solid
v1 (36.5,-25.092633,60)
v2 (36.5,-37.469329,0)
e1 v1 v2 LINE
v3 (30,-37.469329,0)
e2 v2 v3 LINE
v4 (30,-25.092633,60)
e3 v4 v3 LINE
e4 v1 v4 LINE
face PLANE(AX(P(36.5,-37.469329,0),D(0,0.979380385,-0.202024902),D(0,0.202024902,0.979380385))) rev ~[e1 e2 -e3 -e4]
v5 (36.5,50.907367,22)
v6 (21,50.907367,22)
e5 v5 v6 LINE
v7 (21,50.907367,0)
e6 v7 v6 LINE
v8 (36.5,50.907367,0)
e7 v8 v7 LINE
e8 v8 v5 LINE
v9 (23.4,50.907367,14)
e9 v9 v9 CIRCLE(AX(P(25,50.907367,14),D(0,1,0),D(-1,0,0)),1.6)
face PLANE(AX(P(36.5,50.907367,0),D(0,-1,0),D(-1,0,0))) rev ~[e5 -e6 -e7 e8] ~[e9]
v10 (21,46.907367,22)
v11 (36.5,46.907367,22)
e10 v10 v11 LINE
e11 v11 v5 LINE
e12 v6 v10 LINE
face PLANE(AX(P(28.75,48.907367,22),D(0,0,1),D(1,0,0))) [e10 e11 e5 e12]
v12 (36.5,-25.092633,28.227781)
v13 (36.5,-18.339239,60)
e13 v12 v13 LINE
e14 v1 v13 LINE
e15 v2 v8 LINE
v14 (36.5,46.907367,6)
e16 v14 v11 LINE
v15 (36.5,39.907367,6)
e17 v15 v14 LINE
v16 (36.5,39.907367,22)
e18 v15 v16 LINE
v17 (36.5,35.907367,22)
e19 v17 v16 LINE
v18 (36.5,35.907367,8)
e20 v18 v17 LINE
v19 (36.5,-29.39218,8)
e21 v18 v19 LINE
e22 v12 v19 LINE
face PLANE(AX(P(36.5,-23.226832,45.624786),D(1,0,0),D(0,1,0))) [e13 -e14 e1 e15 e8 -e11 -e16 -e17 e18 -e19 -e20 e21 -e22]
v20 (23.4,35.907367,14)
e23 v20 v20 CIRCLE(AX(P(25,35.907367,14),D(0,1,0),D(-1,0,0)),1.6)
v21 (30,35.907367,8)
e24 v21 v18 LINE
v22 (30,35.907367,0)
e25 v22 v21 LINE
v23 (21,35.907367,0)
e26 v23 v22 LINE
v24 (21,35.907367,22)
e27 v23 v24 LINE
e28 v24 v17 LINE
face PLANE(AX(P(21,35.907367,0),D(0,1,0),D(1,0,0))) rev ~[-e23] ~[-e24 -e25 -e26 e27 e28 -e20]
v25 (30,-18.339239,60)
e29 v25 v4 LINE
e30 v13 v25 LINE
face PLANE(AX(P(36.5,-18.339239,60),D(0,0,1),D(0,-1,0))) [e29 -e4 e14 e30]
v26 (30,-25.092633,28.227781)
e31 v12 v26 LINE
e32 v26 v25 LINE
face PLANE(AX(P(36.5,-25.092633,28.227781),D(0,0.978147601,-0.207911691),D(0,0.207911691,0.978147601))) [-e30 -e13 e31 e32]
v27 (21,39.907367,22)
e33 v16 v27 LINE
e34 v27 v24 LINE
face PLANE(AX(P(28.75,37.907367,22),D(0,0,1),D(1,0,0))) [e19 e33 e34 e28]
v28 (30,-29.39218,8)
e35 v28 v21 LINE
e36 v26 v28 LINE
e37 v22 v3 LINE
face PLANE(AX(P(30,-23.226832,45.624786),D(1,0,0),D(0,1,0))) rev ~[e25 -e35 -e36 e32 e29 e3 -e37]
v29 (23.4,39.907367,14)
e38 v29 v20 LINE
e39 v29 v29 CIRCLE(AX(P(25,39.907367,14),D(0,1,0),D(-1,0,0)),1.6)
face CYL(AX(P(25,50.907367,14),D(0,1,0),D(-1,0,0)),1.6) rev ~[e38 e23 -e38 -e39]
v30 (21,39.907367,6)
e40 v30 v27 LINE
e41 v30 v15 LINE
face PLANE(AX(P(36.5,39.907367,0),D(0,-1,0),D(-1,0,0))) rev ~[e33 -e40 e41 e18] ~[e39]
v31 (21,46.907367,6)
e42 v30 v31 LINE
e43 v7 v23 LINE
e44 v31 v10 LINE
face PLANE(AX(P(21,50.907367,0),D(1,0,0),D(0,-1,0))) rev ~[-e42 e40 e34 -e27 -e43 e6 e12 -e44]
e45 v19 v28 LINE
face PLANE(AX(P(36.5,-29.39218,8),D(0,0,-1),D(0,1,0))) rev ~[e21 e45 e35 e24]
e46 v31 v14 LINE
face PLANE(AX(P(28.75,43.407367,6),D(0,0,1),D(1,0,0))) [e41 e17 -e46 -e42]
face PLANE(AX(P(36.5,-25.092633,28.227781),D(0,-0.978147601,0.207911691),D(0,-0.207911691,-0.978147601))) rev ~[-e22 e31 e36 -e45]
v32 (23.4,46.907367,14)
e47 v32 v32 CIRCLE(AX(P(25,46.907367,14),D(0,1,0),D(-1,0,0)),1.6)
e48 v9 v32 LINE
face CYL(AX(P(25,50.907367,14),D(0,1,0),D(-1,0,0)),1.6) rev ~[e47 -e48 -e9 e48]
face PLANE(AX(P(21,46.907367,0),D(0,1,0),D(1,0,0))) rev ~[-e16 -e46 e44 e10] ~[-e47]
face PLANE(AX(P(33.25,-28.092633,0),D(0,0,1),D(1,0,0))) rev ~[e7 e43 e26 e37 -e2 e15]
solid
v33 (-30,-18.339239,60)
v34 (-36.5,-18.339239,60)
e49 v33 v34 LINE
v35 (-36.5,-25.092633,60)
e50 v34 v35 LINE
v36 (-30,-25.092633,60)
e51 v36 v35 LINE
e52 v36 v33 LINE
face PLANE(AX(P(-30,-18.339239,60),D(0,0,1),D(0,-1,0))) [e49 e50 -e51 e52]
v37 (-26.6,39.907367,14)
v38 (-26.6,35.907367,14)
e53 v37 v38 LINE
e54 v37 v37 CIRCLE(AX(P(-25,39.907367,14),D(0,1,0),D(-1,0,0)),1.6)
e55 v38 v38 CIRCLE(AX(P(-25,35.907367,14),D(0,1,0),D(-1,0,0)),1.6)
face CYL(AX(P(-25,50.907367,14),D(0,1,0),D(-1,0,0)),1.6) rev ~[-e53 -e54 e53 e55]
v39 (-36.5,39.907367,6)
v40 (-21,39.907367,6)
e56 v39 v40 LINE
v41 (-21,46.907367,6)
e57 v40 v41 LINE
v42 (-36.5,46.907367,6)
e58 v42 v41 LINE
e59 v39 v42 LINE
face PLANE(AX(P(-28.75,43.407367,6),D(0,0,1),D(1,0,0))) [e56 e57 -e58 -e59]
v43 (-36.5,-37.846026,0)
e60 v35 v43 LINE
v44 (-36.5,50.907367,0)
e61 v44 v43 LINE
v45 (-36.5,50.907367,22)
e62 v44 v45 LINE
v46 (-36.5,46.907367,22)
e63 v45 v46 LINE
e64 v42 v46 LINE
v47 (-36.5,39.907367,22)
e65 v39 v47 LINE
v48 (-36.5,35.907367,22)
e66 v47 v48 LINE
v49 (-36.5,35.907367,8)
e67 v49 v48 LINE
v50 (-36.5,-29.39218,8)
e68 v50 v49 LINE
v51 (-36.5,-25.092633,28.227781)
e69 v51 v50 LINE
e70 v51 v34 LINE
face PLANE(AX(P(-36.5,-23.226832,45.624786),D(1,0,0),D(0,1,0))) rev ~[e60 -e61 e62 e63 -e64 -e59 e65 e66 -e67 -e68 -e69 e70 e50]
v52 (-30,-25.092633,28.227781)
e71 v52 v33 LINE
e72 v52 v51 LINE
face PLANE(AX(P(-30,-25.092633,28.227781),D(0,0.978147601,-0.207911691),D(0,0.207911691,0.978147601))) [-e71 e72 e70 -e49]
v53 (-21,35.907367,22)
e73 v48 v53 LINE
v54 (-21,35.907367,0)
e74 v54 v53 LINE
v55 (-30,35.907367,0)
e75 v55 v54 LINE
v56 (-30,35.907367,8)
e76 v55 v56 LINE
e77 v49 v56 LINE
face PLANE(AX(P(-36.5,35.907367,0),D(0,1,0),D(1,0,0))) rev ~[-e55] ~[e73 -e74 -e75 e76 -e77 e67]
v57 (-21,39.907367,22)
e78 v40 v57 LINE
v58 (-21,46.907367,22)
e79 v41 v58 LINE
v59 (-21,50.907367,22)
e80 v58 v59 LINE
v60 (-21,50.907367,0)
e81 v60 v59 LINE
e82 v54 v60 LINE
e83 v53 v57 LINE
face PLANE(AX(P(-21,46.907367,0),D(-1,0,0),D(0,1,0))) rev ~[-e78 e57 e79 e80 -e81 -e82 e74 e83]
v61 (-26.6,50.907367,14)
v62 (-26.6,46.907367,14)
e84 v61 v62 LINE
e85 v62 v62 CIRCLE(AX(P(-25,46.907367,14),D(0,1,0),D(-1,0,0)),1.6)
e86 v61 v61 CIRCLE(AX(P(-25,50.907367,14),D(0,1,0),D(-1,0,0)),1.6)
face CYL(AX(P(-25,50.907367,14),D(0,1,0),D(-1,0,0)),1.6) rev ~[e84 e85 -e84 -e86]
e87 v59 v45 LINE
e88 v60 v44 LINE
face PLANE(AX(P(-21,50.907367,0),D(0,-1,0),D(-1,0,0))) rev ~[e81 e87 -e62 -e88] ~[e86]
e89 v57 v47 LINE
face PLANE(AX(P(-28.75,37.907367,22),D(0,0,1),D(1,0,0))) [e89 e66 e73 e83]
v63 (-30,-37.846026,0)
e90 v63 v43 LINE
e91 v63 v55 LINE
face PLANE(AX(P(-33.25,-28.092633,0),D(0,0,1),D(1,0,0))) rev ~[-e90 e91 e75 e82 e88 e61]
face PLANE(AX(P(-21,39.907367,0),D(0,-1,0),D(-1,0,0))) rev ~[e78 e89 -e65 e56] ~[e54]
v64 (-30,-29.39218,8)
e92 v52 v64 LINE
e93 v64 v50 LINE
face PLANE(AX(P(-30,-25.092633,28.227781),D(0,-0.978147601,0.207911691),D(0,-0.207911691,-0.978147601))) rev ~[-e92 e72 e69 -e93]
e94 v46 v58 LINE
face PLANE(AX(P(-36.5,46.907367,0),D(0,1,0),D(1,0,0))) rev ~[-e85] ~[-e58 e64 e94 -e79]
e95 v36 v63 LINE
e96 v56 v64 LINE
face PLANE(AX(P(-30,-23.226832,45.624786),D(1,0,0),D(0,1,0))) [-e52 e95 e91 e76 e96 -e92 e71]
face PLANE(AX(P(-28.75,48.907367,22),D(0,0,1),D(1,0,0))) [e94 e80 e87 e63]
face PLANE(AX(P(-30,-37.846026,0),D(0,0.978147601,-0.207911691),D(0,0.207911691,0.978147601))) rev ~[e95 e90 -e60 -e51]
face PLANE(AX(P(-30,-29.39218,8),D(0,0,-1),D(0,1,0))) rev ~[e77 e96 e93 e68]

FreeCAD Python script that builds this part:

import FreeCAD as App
import Part
import Sketcher
Q = App.Units.Quantity


def add_polygon(sketch, points):
    """Adds a closed chain of lines whose ends are joined by coincident constraints."""
    first, n = sketch.GeometryCount, len(points)
    for a, b in zip(points, points[1:] + points[:1]):
        sketch.addGeometry(Part.LineSegment(App.Vector(*a, 0), App.Vector(*b, 0)), False)
    for i in range(n):
        sketch.addConstraint(Sketcher.Constraint("Coincident", first + i, 2, first + (i + 1) % n, 1))

doc = App.newDocument("Part")
body = doc.addObject("PartDesign::Body", "Body")

sketch1 = body.newObject("Sketcher::SketchObject", "Sketch")
sketch1.AttachmentSupport = (doc.getObject("XY_Plane"), [""])
sketch1.MapMode = "FlatFace"
add_polygon(sketch1, [(-36.5, 46.907367), (-36.5, 39.907367), (-21, 39.907367), (-21, 46.907367)])
sketch1.addConstraint(Sketcher.Constraint("Vertical", 0))
sketch1.addConstraint(Sketcher.Constraint("Horizontal", 1))
sketch1.addConstraint(Sketcher.Constraint("Vertical", 2))
sketch1.addConstraint(Sketcher.Constraint("Horizontal", 3))
sketch1.addConstraint(Sketcher.Constraint("DistanceY", 0, 2, 0, 1, 7.0))
sketch1.addConstraint(Sketcher.Constraint("DistanceX", 1, 1, 1, 2, 15.5))
sketch1.addConstraint(Sketcher.Constraint("DistanceX", 1, 2, -1, 1, 21.0))
sketch1.addConstraint(Sketcher.Constraint("DistanceY", -1, 1, 0, 2, 39.907367))
pad1 = body.newObject("PartDesign::Pad", "Pad")
pad1.Profile = sketch1
pad1.Length = 6

sketch2 = body.newObject("Sketcher::SketchObject", "Sketch001")
sketch2.AttachmentSupport = (doc.getObject("XY_Plane"), [""])
sketch2.MapMode = "FlatFace"
add_polygon(sketch2, [(-21, 50.907367), (-36.5, 50.907367), (-36.5, 46.907367), (-21, 46.907367)])
add_polygon(sketch2, [(-21, 39.907367), (-36.5, 39.907367), (-36.5, 35.907367), (-21, 35.907367)])
sketch2.addConstraint(Sketcher.Constraint("Horizontal", 0))
sketch2.addConstraint(Sketcher.Constraint("Vertical", 1))
sketch2.addConstraint(Sketcher.Constraint("Horizontal", 2))
sketch2.addConstraint(Sketcher.Constraint("Vertical", 3))
sketch2.addConstraint(Sketcher.Constraint("Horizontal", 4))
sketch2.addConstraint(Sketcher.Constraint("Vertical", 5))
sketch2.addConstraint(Sketcher.Constraint("Horizontal", 6))
sketch2.addConstraint(Sketcher.Constraint("Vertical", 7))
sketch2.addConstraint(Sketcher.Constraint("Vertical", 1, 2, 4, 2))
sketch2.addConstraint(Sketcher.Constraint("Vertical", 3, 2, 6, 2))
sketch2.addConstraint(Sketcher.Constraint("Equal", 3, 5))
sketch2.addConstraint(Sketcher.Constraint("DistanceY", 1, 2, 1, 1, 4.0))
sketch2.addConstraint(Sketcher.Constraint("DistanceX", 0, 2, 0, 1, 15.5))
sketch2.addConstraint(Sketcher.Constraint("DistanceX", 2, 2, -1, 1, 21.0))
sketch2.addConstraint(Sketcher.Constraint("DistanceY", 4, 2, 1, 2, 7.0))
sketch2.addConstraint(Sketcher.Constraint("DistanceY", -1, 1, 0, 2, 50.907367))
pad2 = body.newObject("PartDesign::Pad", "Pad001")
pad2.Profile = sketch2
pad2.Length = 22

sketch3 = body.newObject("Sketcher::SketchObject", "Sketch002")
sketch3.AttachmentSupport = (doc.getObject("XY_Plane"), [""])
sketch3.MapMode = "FlatFace"
add_polygon(sketch3, [(-36.5, 35.907367), (-36.5, -25.092633), (-30, -25.092633), (-30, 35.907367)])
sketch3.addConstraint(Sketcher.Constraint("Vertical", 0))
sketch3.addConstraint(Sketcher.Constraint("Horizontal", 1))
sketch3.addConstraint(Sketcher.Constraint("Vertical", 2))
sketch3.addConstraint(Sketcher.Constraint("Horizontal", 3))
sketch3.addConstraint(Sketcher.Constraint("DistanceY", 0, 2, 0, 1, 61.0))
sketch3.addConstraint(Sketcher.Constraint("DistanceX", 1, 1, 1, 2, 6.5))
sketch3.addConstraint(Sketcher.Constraint("DistanceX", 1, 2, -1, 1, 30.0))
sketch3.addConstraint(Sketcher.Constraint("DistanceY", 0, 2, -1, 1, 25.092633))
pad3 = body.newObject("PartDesign::Pad", "Pad002")
pad3.Profile = sketch3
pad3.Length = 8

sketch4 = body.newObject("Sketcher::SketchObject", "Sketch003")
sketch4.AttachmentSupport = (doc.getObject("XY_Plane"), [""])
sketch4.MapMode = "FlatFace"
add_polygon(sketch4, [(-36.5, -25.092633), (-36.5, -31.092633), (-30, -31.092633), (-30, -25.092633)])
sketch4.addConstraint(Sketcher.Constraint("Vertical", 0))
sketch4.addConstraint(Sketcher.Constraint("Horizontal", 1))
sketch4.addConstraint(Sketcher.Constraint("Vertical", 2))
sketch4.addConstraint(Sketcher.Constraint("Horizontal", 3))
sketch4.addConstraint(Sketcher.Constraint("DistanceY", 0, 2, 0, 1, 6.0))
sketch4.addConstraint(Sketcher.Constraint("DistanceX", 1, 1, 1, 2, 6.5))
sketch4.addConstraint(Sketcher.Constraint("DistanceX", 1, 2, -1, 1, 30.0))
sketch4.addConstraint(Sketcher.Constraint("DistanceY", 0, 2, -1, 1, 31.092633))
pad4 = body.newObject("PartDesign::Pad", "Pad003")
pad4.Profile = sketch4
pad4.Length = 60

sketch5 = body.newObject("Sketcher::SketchObject", "Sketch004")
sketch5.AttachmentSupport = (doc.getObject("XZ_Plane"), [""])
sketch5.MapMode = "FlatFace"
sketch5.AttachmentOffset = App.Placement(App.Vector(0, 0, -50.907367), App.Rotation())
sketch5.addGeometry(Part.Circle(App.Vector(-25, 14, 0), App.Vector(0, 0, 1), 1.6), False)
sketch5.addConstraint(Sketcher.Constraint("Diameter", 0, 3.2))
sketch5.addConstraint(Sketcher.Constraint("DistanceX", 0, 3, -1, 1, 25.0))
sketch5.addConstraint(Sketcher.Constraint("DistanceY", -1, 1, 0, 3, 14.0))
pocket1 = body.newObject("PartDesign::Pocket", "Pocket")
pocket1.Profile = sketch5
pocket1.Type = "ThroughAll"
pocket1.Reversed = True

sketch6 = body.newObject("Sketcher::SketchObject", "Sketch005")
sketch6.AttachmentSupport = (doc.getObject("YZ_Plane"), [""])
sketch6.MapMode = "FlatFace"
sketch6.AttachmentOffset = App.Placement(App.Vector(0, 0, -30), App.Rotation())
add_polygon(sketch6, [(-18.339239, 60), (-25.092633, 60), (-37.846026, 0), (-25.092633, 0), (-25.092633, 8), (-29.39218, 8), (-25.092633, 28.227781)])
sketch6.addConstraint(Sketcher.Constraint("Horizontal", 0))
sketch6.addConstraint(Sketcher.Constraint("Horizontal", 2))
sketch6.addConstraint(Sketcher.Constraint("Vertical", 3))
sketch6.addConstraint(Sketcher.Constraint("Horizontal", 4))
sketch6.addConstraint(Sketcher.Constraint("PointOnObject", 1, 2, -1))
sketch6.addConstraint(Sketcher.Constraint("Parallel", 1, 5))
sketch6.addConstraint(Sketcher.Constraint("Parallel", 5, 6))
sketch6.addConstraint(Sketcher.Constraint("Vertical", 0, 2, 2, 2))
sketch6.addConstraint(Sketcher.Constraint("Vertical", 3, 2, 5, 2))
sketch6.addConstraint(Sketcher.Constraint("DistanceY", 3, 1, 3, 2, 8.0))
sketch6.addConstraint(Sketcher.Constraint("Angle", 1, Q("-102 deg")))
sketch6.addConstraint(Sketcher.Constraint("DistanceY", -1, 1, 0, 2, 60.0))
sketch6.addConstraint(Sketcher.Constraint("Distance", 5, 20.679681))
sketch6.addConstraint(Sketcher.Constraint("DistanceX", 4, 2, -1, 1, 29.39218))
pad5 = body.newObject("PartDesign::Pad", "Pad004")
pad5.Profile = sketch6
pad5.Length = 6.5
pad5.Reversed = True

sketch7 = body.newObject("Sketcher::SketchObject", "Sketch006")
sketch7.AttachmentSupport = (doc.getObject("YZ_Plane"), [""])
sketch7.MapMode = "FlatFace"
sketch7.AttachmentOffset = App.Placement(App.Vector(0, 0, -30), App.Rotation())
add_polygon(sketch7, [(-25.092633, 60), (-31.092633, 60), (-43.846026, 0), (-37.846026, 0)])
add_polygon(sketch7, [(-25.092633, 8), (-25.092633, 28.227781), (-29.39218, 8)])
sketch7.addConstraint(Sketcher.Constraint("Horizontal", 0))
sketch7.addConstraint(Sketcher.Constraint("Horizontal", 2))
sketch7.addConstraint(Sketcher.Constraint("Vertical", 4))
sketch7.addConstraint(Sketcher.Constraint("Horizontal", 6))
sketch7.addConstraint(Sketcher.Constraint("PointOnObject", 1, 2, -1))
sketch7.addConstraint(Sketcher.Constraint("Parallel", 1, 3))
sketch7.addConstraint(Sketcher.Constraint("Parallel", 3, 5))
sketch7.addConstraint(Sketcher.Constraint("Vertical", 3, 2, 4, 2))
sketch7.addConstraint(Sketcher.Constraint("DistanceX", 0, 2, 0, 1, 6.0))
sketch7.addConstraint(Sketcher.Constraint("Angle", 1, Q("-102 deg")))
sketch7.addConstraint(Sketcher.Constraint("DistanceY", -1, 1, 0, 2, 60.0))
sketch7.addConstraint(Sketcher.Constraint("DistanceY", -1, 1, 5, 2, 8.0))
sketch7.addConstraint(Sketcher.Constraint("DistanceY", 4, 1, 4, 2, 20.227781))
sketch7.addConstraint(Sketcher.Constraint("DistanceX", 5, 2, -1, 1, 29.39218))
pocket2 = body.newObject("PartDesign::Pocket", "Pocket001")
pocket2.Profile = sketch7
pocket2.Length = 6.5
body2 = doc.addObject("PartDesign::Body", "Body001")

sketch8 = body2.newObject("Sketcher::SketchObject", "Sketch007")
sketch8.AttachmentSupport = (doc.getObject("XY_Plane001"), [""])
sketch8.MapMode = "FlatFace"
add_polygon(sketch8, [(21, 46.907367), (21, 39.907367), (36.5, 39.907367), (36.5, 46.907367)])
sketch8.addConstraint(Sketcher.Constraint("Vertical", 0))
sketch8.addConstraint(Sketcher.Constraint("Horizontal", 1))
sketch8.addConstraint(Sketcher.Constraint("Vertical", 2))
sketch8.addConstraint(Sketcher.Constraint("Horizontal", 3))
sketch8.addConstraint(Sketcher.Constraint("DistanceY", 0, 2, 0, 1, 7.0))
sketch8.addConstraint(Sketcher.Constraint("DistanceX", 1, 1, 1, 2, 15.5))
sketch8.addConstraint(Sketcher.Constraint("DistanceX", -1, 1, 0, 2, 21.0))
sketch8.addConstraint(Sketcher.Constraint("DistanceY", -1, 1, 0, 2, 39.907367))
pad6 = body2.newObject("PartDesign::Pad", "Pad005")
pad6.Profile = sketch8
pad6.Length = 6

sketch9 = body2.newObject("Sketcher::SketchObject", "Sketch008")
sketch9.AttachmentSupport = (doc.getObject("XY_Plane001"), [""])
sketch9.MapMode = "FlatFace"
add_polygon(sketch9, [(21, 46.907367), (36.5, 46.907367), (36.5, 50.907367), (21, 50.907367)])
add_polygon(sketch9, [(36.5, 35.907367), (36.5, 39.907367), (21, 39.907367), (21, 35.907367)])
sketch9.addConstraint(Sketcher.Constraint("Horizontal", 0))
sketch9.addConstraint(Sketcher.Constraint("Vertical", 1))
sketch9.addConstraint(Sketcher.Constraint("Horizontal", 2))
sketch9.addConstraint(Sketcher.Constraint("Vertical", 3))
sketch9.addConstraint(Sketcher.Constraint("Vertical", 4))
sketch9.addConstraint(Sketcher.Constraint("Horizontal", 5))
sketch9.addConstraint(Sketcher.Constraint("Vertical", 6))
sketch9.addConstraint(Sketcher.Constraint("Horizontal", 7))
sketch9.addConstraint(Sketcher.Constraint("Vertical", 1, 2, 4, 2))
sketch9.addConstraint(Sketcher.Constraint("Vertical", 3, 2, 5, 2))
sketch9.addConstraint(Sketcher.Constraint("Equal", 3, 4))
sketch9.addConstraint(Sketcher.Constraint("DistanceY", 1, 1, 1, 2, 4.0))
sketch9.addConstraint(Sketcher.Constraint("DistanceX", 0, 1, 0, 2, 15.5))
sketch9.addConstraint(Sketcher.Constraint("DistanceX", -1, 1, 2, 2, 21.0))
sketch9.addConstraint(Sketcher.Constraint("DistanceY", 4, 2, 0, 2, 7.0))
sketch9.addConstraint(Sketcher.Constraint("DistanceY", -1, 1, 0, 2, 46.907367))
pad7 = body2.newObject("PartDesign::Pad", "Pad006")
pad7.Profile = sketch9
pad7.Length = 22

sketch10 = body2.newObject("Sketcher::SketchObject", "Sketch009")
sketch10.AttachmentSupport = (doc.getObject("XY_Plane001"), [""])
sketch10.MapMode = "FlatFace"
add_polygon(sketch10, [(30, 35.907367), (30, -25.092633), (36.5, -25.092633), (36.5, 35.907367)])
sketch10.addConstraint(Sketcher.Constraint("Vertical", 0))
sketch10.addConstraint(Sketcher.Constraint("Horizontal", 1))
sketch10.addConstraint(Sketcher.Constraint("Vertical", 2))
sketch10.addConstraint(Sketcher.Constraint("Horizontal", 3))
sketch10.addConstraint(Sketcher.Constraint("DistanceY", 0, 2, 0, 1, 61.0))
sketch10.addConstraint(Sketcher.Constraint("DistanceX", 1, 1, 1, 2, 6.5))
sketch10.addConstraint(Sketcher.Constraint("DistanceX", -1, 1, 0, 2, 30.0))
sketch10.addConstraint(Sketcher.Constraint("DistanceY", 0, 2, -1, 1, 25.092633))
pad8 = body2.newObject("PartDesign::Pad", "Pad007")
pad8.Profile = sketch10
pad8.Length = 8

sketch11 = body2.newObject("Sketcher::SketchObject", "Sketch010")
sketch11.AttachmentSupport = (doc.getObject("XY_Plane001"), [""])
sketch11.MapMode = "FlatFace"
add_polygon(sketch11, [(30, -25.092633), (30, -31.092633), (36.5, -31.092633), (36.5, -25.092633)])
sketch11.addConstraint(Sketcher.Constraint("Vertical", 0))
sketch11.addConstraint(Sketcher.Constraint("Horizontal", 1))
sketch11.addConstraint(Sketcher.Constraint("Vertical", 2))
sketch11.addConstraint(Sketcher.Constraint("Horizontal", 3))
sketch11.addConstraint(Sketcher.Constraint("DistanceY", 0, 2, 0, 1, 6.0))
sketch11.addConstraint(Sketcher.Constraint("DistanceX", 1, 1, 1, 2, 6.5))
sketch11.addConstraint(Sketcher.Constraint("DistanceX", -1, 1, 0, 2, 30.0))
sketch11.addConstraint(Sketcher.Constraint("DistanceY", 0, 2, -1, 1, 31.092633))
pad9 = body2.newObject("PartDesign::Pad", "Pad008")
pad9.Profile = sketch11
pad9.Length = 60

sketch12 = body2.newObject("Sketcher::SketchObject", "Sketch011")
sketch12.AttachmentSupport = (doc.getObject("XZ_Plane001"), [""])
sketch12.MapMode = "FlatFace"
sketch12.AttachmentOffset = App.Placement(App.Vector(0, 0, -50.907367), App.Rotation())
sketch12.addGeometry(Part.Circle(App.Vector(25, 14, 0), App.Vector(0, 0, 1), 1.6), False)
sketch12.addConstraint(Sketcher.Constraint("Diameter", 0, 3.2))
sketch12.addConstraint(Sketcher.Constraint("DistanceX", -1, 1, 0, 3, 25.0))
sketch12.addConstraint(Sketcher.Constraint("DistanceY", -1, 1, 0, 3, 14.0))
pocket3 = body2.newObject("PartDesign::Pocket", "Pocket002")
pocket3.Profile = sketch12
pocket3.Type = "ThroughAll"
pocket3.Reversed = True

sketch13 = body2.newObject("Sketcher::SketchObject", "Sketch012")
sketch13.AttachmentSupport = (doc.getObject("YZ_Plane001"), [""])
sketch13.MapMode = "FlatFace"
sketch13.AttachmentOffset = App.Placement(App.Vector(0, 0, 36.5), App.Rotation())
add_polygon(sketch13, [(-18.339239, 60), (-25.092633, 60), (-37.469329, 0), (-31.092633, 0), (-29.39218, 8), (-25.092633, 28.227781)])
sketch13.addConstraint(Sketcher.Constraint("Horizontal", 0))
sketch13.addConstraint(Sketcher.Constraint("Horizontal", 2))
sketch13.addConstraint(Sketcher.Constraint("PointOnObject", 1, 2, -1))
sketch13.addConstraint(Sketcher.Constraint("Parallel", 3, 4))
sketch13.addConstraint(Sketcher.Constraint("Parallel", 4, 5))
sketch13.addConstraint(Sketcher.Constraint("Vertical", 0, 2, 4, 2))
sketch13.addConstraint(Sketcher.Constraint("Angle", 3, Q("78 deg")))
sketch13.addConstraint(Sketcher.Constraint("DistanceY", -1, 1, 0, 2, 60.0))
sketch13.addConstraint(Sketcher.Constraint("DistanceY", -1, 1, 3, 2, 8.0))
sketch13.addConstraint(Sketcher.Constraint("DistanceX", 2, 2, 0, 2, 6.0))
sketch13.addConstraint(Sketcher.Constraint("DistanceX", 2, 1, 2, 2, 6.376697))
sketch13.addConstraint(Sketcher.Constraint("DistanceX", 1, 2, -1, 1, 37.469329))
pad10 = body2.newObject("PartDesign::Pad", "Pad009")
pad10.Profile = sketch13
pad10.Length = 6.5
pad10.Reversed = True

sketch14 = body2.newObject("Sketcher::SketchObject", "Sketch013")
sketch14.AttachmentSupport = (doc.getObject("YZ_Plane001"), [""])
sketch14.MapMode = "FlatFace"
sketch14.AttachmentOffset = App.Placement(App.Vector(0, 0, 36.5), App.Rotation())
add_polygon(sketch14, [(-25.092633, 60), (-31.092633, 60), (-43.846026, 0), (-37.469329, 0)])
add_polygon(sketch14, [(-25.092633, 8), (-25.092633, 28.227781), (-29.39218, 8)])
sketch14.addConstraint(Sketcher.Constraint("Horizontal", 0))
sketch14.addConstraint(Sketcher.Constraint("Horizontal", 2))
sketch14.addConstraint(Sketcher.Constraint("Vertical", 4))
sketch14.addConstraint(Sketcher.Constraint("Horizontal", 6))
sketch14.addConstraint(Sketcher.Constraint("PointOnObject", 1, 2, -1))
sketch14.addConstraint(Sketcher.Constraint("Parallel", 1, 5))
sketch14.addConstraint(Sketcher.Constraint("Vertical", 3, 2, 4, 2))
sketch14.addConstraint(Sketcher.Constraint("DistanceX", 0, 2, 0, 1, 6.0))
sketch14.addConstraint(Sketcher.Constraint("Angle", 1, Q("-102 deg")))
sketch14.addConstraint(Sketcher.Constraint("DistanceY", -1, 1, 0, 2, 60.0))
sketch14.addConstraint(Sketcher.Constraint("DistanceY", -1, 1, 5, 2, 8.0))
sketch14.addConstraint(Sketcher.Constraint("DistanceY", 4, 1, 4, 2, 20.227781))
sketch14.addConstraint(Sketcher.Constraint("DistanceX", 2, 1, 2, 2, 6.376697))
sketch14.addConstraint(Sketcher.Constraint("DistanceX", 2, 2, -1, 1, 37.469329))
pocket4 = body2.newObject("PartDesign::Pocket", "Pocket003")
pocket4.Profile = sketch14
pocket4.Length = 6.5

doc.recompute()
